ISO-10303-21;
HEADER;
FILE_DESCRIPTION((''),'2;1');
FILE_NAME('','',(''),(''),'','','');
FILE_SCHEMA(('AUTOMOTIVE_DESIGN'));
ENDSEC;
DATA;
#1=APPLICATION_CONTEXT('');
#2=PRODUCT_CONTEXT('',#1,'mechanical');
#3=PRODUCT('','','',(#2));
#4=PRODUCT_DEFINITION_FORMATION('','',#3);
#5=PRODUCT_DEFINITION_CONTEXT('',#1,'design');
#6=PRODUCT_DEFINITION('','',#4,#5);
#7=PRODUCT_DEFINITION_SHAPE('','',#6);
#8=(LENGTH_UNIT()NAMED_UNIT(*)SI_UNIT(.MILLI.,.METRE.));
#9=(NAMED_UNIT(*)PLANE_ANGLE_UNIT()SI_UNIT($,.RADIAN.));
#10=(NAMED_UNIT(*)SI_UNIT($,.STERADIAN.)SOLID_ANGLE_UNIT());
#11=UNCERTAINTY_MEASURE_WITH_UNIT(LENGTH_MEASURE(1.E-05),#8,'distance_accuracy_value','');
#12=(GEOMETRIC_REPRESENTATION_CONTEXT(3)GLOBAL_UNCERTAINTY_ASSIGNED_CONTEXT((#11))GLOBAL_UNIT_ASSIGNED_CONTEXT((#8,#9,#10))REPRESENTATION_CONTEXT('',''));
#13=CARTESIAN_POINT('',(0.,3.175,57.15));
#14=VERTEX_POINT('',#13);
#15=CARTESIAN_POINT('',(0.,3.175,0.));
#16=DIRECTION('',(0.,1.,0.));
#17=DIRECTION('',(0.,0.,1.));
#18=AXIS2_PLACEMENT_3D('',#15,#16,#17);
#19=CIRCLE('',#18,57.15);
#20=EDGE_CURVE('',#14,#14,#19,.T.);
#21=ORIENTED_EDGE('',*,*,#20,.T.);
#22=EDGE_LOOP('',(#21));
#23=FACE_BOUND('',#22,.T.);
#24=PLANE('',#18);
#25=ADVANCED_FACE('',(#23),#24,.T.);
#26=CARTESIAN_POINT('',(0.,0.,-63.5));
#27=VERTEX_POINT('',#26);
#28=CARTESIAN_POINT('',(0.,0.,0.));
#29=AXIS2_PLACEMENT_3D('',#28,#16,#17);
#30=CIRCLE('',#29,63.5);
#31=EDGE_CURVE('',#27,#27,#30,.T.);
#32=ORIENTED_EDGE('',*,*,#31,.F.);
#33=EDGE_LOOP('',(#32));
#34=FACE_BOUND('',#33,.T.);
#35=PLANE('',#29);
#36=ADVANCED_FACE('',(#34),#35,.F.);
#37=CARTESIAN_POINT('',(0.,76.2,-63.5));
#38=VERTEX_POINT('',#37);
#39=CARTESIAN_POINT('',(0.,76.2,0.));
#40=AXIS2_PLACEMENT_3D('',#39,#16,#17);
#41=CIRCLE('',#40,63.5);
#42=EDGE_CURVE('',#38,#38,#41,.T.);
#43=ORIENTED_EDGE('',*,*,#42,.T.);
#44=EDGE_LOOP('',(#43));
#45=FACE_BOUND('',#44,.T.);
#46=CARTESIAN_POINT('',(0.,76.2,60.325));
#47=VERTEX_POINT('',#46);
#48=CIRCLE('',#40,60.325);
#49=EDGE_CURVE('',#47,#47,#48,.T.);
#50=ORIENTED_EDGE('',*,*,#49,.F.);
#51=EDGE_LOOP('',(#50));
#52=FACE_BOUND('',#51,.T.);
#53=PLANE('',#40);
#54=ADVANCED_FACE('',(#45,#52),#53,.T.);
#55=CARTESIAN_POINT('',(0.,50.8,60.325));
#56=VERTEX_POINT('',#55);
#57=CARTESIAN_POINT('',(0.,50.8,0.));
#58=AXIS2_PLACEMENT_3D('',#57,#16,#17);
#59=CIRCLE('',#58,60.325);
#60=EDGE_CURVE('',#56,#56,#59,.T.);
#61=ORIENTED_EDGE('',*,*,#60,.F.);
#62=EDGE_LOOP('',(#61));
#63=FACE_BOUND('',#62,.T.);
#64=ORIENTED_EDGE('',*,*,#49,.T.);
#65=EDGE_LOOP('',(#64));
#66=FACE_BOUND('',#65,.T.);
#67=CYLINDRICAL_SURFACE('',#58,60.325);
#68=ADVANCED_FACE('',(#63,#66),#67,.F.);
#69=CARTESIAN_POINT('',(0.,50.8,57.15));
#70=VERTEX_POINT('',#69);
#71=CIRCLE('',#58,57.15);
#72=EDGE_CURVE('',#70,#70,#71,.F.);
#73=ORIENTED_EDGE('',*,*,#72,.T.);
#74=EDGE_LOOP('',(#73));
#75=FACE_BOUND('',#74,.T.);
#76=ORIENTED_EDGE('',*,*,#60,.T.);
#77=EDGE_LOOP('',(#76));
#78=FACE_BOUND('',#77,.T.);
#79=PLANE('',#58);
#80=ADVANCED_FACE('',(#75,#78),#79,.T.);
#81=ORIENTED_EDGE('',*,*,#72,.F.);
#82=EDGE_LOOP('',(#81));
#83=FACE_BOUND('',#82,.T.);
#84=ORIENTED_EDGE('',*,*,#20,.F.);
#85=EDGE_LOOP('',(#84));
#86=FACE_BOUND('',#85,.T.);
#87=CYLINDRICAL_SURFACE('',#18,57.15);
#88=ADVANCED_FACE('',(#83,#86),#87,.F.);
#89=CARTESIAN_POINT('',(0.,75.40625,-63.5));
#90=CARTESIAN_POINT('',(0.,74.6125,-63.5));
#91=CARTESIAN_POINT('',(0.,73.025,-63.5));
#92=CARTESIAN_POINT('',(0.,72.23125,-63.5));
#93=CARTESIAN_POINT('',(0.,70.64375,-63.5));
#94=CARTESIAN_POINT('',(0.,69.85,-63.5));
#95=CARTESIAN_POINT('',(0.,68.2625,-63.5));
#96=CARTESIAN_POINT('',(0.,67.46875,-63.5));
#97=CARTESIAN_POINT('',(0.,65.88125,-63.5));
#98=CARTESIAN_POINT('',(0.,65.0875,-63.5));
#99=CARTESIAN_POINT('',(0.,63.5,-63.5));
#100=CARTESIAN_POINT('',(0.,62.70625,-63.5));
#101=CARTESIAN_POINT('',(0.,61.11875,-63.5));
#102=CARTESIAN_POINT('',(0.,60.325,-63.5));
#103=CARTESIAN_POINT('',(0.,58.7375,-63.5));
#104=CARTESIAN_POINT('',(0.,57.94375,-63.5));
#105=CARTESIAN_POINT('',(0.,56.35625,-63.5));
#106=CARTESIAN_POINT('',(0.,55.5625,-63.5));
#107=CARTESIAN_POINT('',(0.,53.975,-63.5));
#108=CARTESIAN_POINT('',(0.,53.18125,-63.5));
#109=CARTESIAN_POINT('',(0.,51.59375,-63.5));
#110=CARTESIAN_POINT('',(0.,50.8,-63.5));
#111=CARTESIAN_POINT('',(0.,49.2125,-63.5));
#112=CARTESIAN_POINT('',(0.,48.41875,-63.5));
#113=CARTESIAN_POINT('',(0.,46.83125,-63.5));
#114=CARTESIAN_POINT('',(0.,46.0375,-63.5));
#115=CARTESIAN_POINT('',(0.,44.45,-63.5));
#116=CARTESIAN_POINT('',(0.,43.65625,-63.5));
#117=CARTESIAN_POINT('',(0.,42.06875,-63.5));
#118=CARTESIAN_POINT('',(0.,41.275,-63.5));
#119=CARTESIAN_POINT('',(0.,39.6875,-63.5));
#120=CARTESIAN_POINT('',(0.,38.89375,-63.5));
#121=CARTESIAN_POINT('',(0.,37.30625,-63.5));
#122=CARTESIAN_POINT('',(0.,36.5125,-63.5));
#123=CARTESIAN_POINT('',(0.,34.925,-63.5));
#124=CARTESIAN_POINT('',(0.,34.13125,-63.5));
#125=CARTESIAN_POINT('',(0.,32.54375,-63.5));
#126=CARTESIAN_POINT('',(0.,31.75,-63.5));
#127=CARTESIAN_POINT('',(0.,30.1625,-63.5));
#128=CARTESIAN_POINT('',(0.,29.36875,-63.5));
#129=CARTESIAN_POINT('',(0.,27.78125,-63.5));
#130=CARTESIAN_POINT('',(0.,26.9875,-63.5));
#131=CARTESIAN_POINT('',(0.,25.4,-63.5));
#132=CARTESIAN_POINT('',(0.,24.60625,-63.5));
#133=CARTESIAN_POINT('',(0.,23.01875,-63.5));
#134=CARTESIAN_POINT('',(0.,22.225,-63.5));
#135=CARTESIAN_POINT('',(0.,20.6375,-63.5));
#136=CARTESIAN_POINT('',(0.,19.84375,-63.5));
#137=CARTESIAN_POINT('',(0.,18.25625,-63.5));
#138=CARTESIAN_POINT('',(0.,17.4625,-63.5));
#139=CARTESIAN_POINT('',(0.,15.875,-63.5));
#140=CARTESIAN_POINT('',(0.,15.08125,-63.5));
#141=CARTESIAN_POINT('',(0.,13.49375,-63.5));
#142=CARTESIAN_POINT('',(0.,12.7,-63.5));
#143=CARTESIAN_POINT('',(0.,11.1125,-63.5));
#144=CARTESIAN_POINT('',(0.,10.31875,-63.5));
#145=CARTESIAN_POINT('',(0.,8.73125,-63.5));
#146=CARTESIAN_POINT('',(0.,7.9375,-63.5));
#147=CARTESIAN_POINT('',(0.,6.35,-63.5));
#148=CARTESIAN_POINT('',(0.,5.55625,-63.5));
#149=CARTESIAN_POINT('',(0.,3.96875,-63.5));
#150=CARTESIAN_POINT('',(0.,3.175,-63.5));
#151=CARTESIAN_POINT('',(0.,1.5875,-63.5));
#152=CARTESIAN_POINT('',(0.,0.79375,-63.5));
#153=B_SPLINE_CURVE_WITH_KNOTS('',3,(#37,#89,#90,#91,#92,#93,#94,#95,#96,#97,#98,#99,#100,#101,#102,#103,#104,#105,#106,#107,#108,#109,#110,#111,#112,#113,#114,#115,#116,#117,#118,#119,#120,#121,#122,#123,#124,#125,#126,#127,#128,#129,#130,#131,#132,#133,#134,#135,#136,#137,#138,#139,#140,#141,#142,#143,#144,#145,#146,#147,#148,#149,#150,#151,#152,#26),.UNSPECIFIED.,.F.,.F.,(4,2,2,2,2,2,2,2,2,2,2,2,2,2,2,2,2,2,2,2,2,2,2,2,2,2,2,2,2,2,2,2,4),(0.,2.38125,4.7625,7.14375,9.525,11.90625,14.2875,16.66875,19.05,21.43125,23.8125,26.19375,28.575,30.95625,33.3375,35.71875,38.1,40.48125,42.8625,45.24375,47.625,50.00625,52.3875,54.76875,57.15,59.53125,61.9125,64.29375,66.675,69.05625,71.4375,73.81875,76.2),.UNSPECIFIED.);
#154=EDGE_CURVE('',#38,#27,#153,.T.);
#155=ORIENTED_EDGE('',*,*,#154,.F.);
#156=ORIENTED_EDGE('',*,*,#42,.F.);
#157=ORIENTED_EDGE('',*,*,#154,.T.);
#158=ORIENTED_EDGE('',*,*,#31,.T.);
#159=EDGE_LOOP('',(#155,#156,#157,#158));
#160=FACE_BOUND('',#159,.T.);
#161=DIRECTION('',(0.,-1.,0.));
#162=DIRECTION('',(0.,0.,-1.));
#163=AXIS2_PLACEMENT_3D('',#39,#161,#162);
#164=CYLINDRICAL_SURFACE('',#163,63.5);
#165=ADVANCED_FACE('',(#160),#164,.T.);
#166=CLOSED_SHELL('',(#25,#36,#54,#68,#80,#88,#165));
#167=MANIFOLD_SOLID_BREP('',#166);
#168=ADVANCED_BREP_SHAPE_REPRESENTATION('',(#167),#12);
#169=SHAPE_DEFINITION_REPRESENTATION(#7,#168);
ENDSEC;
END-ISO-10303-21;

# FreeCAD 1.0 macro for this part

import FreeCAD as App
import Part
import Sketcher

V = App.Vector
Q = App.Units.Quantity

doc = App.newDocument("Part")
body = doc.addObject("PartDesign::Body", "Body")

sketch1 = body.newObject("Sketcher::SketchObject", "Sketch")
sketch1.AttachmentSupport = (doc.getObject("XZ_Plane"), [""])
sketch1.MapMode = "FlatFace"
sketch1.addGeometry(Part.Circle(V(0, 0, 0), V(0, 0, 1), 64), False)
sketch1.addConstraint([
    Sketcher.Constraint("Coincident", 0, 3, -1, 1),
    Sketcher.Constraint("Diameter", 0, Q("5 in")),
])
pad1 = body.newObject("PartDesign::Pad", "Pad")
pad1.Profile = sketch1
pad1.Length = Q("3 in")
pad1.Reversed = True

sketch2 = body.newObject("Sketcher::SketchObject", "Sketch001")
sketch2.AttachmentSupport = (doc.getObject("XZ_Plane"), [""])
sketch2.MapMode = "FlatFace"
sketch2.AttachmentOffset = App.Placement(V(0, 0, -3 * 25.4), App.Rotation())
sketch2.addGeometry(Part.Circle(V(0, 0, 0), V(0, 0, 1), 57), False)
sketch2.addConstraint([
    Sketcher.Constraint("Coincident", 0, 3, -1, 1),
    Sketcher.Constraint("Diameter", 0, Q("4.5 in")),
])
pocket1 = body.newObject("PartDesign::Pocket", "Pocket")
pocket1.Profile = sketch2
pocket1.Length = Q("2.875 in")
pocket1.Reversed = True

sketch3 = body.newObject("Sketcher::SketchObject", "Sketch002")
sketch3.AttachmentSupport = (doc.getObject("XZ_Plane"), [""])
sketch3.MapMode = "FlatFace"
sketch3.AttachmentOffset = App.Placement(V(0, 0, -3 * 25.4), App.Rotation())
sketch3.addGeometry(Part.Circle(V(0, 0, 0), V(0, 0, 1), 60), False)
sketch3.addConstraint([
    Sketcher.Constraint("Coincident", 0, 3, -1, 1),
    Sketcher.Constraint("Diameter", 0, Q("4.75 in")),
])
pocket2 = body.newObject("PartDesign::Pocket", "Pocket001")
pocket2.Profile = sketch3
pocket2.Length = Q("1 in")
pocket2.Reversed = True

doc.recompute()
